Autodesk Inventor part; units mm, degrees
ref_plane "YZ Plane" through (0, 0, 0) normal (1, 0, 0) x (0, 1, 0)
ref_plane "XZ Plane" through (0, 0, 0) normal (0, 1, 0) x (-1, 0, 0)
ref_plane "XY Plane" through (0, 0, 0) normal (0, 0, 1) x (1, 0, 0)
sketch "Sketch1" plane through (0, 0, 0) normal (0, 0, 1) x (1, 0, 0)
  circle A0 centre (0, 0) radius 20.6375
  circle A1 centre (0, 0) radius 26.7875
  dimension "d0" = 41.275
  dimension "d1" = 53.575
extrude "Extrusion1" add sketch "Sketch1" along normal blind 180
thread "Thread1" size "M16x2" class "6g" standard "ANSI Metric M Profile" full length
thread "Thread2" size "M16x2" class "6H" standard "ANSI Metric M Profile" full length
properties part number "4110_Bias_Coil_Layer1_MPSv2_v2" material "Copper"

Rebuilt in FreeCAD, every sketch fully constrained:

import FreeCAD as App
import Part
import Sketcher

V = App.Vector
Q = App.Units.Quantity

doc = App.newDocument("Part")
body = doc.addObject("PartDesign::Body", "Body")

# Sketch on XY plane
sketch1 = body.newObject("Sketcher::SketchObject", "Sketch")
sketch1.AttachmentSupport = (doc.getObject("XY_Plane"), [""])
sketch1.MapMode = "FlatFace"
sketch1.addGeometry(Part.Circle(V(0, 0, 0), V(0, 0, 1), 27), False)
sketch1.addGeometry(Part.Circle(V(0, 0, 0), V(0, 0, 1), 21), False)
sketch1.addConstraint(Sketcher.Constraint("Coincident", 0, 3, -1, 1))
sketch1.addConstraint(Sketcher.Constraint("Coincident", 1, 3, -1, 1))
sketch1.addConstraint(Sketcher.Constraint("Diameter", 0, Q("53.575 mm")))
sketch1.addConstraint(Sketcher.Constraint("Diameter", 1, Q("41.275 mm")))
pad1 = body.newObject("PartDesign::Pad", "Pad")
pad1.Profile = sketch1
pad1.Length = 180

doc.recompute()
